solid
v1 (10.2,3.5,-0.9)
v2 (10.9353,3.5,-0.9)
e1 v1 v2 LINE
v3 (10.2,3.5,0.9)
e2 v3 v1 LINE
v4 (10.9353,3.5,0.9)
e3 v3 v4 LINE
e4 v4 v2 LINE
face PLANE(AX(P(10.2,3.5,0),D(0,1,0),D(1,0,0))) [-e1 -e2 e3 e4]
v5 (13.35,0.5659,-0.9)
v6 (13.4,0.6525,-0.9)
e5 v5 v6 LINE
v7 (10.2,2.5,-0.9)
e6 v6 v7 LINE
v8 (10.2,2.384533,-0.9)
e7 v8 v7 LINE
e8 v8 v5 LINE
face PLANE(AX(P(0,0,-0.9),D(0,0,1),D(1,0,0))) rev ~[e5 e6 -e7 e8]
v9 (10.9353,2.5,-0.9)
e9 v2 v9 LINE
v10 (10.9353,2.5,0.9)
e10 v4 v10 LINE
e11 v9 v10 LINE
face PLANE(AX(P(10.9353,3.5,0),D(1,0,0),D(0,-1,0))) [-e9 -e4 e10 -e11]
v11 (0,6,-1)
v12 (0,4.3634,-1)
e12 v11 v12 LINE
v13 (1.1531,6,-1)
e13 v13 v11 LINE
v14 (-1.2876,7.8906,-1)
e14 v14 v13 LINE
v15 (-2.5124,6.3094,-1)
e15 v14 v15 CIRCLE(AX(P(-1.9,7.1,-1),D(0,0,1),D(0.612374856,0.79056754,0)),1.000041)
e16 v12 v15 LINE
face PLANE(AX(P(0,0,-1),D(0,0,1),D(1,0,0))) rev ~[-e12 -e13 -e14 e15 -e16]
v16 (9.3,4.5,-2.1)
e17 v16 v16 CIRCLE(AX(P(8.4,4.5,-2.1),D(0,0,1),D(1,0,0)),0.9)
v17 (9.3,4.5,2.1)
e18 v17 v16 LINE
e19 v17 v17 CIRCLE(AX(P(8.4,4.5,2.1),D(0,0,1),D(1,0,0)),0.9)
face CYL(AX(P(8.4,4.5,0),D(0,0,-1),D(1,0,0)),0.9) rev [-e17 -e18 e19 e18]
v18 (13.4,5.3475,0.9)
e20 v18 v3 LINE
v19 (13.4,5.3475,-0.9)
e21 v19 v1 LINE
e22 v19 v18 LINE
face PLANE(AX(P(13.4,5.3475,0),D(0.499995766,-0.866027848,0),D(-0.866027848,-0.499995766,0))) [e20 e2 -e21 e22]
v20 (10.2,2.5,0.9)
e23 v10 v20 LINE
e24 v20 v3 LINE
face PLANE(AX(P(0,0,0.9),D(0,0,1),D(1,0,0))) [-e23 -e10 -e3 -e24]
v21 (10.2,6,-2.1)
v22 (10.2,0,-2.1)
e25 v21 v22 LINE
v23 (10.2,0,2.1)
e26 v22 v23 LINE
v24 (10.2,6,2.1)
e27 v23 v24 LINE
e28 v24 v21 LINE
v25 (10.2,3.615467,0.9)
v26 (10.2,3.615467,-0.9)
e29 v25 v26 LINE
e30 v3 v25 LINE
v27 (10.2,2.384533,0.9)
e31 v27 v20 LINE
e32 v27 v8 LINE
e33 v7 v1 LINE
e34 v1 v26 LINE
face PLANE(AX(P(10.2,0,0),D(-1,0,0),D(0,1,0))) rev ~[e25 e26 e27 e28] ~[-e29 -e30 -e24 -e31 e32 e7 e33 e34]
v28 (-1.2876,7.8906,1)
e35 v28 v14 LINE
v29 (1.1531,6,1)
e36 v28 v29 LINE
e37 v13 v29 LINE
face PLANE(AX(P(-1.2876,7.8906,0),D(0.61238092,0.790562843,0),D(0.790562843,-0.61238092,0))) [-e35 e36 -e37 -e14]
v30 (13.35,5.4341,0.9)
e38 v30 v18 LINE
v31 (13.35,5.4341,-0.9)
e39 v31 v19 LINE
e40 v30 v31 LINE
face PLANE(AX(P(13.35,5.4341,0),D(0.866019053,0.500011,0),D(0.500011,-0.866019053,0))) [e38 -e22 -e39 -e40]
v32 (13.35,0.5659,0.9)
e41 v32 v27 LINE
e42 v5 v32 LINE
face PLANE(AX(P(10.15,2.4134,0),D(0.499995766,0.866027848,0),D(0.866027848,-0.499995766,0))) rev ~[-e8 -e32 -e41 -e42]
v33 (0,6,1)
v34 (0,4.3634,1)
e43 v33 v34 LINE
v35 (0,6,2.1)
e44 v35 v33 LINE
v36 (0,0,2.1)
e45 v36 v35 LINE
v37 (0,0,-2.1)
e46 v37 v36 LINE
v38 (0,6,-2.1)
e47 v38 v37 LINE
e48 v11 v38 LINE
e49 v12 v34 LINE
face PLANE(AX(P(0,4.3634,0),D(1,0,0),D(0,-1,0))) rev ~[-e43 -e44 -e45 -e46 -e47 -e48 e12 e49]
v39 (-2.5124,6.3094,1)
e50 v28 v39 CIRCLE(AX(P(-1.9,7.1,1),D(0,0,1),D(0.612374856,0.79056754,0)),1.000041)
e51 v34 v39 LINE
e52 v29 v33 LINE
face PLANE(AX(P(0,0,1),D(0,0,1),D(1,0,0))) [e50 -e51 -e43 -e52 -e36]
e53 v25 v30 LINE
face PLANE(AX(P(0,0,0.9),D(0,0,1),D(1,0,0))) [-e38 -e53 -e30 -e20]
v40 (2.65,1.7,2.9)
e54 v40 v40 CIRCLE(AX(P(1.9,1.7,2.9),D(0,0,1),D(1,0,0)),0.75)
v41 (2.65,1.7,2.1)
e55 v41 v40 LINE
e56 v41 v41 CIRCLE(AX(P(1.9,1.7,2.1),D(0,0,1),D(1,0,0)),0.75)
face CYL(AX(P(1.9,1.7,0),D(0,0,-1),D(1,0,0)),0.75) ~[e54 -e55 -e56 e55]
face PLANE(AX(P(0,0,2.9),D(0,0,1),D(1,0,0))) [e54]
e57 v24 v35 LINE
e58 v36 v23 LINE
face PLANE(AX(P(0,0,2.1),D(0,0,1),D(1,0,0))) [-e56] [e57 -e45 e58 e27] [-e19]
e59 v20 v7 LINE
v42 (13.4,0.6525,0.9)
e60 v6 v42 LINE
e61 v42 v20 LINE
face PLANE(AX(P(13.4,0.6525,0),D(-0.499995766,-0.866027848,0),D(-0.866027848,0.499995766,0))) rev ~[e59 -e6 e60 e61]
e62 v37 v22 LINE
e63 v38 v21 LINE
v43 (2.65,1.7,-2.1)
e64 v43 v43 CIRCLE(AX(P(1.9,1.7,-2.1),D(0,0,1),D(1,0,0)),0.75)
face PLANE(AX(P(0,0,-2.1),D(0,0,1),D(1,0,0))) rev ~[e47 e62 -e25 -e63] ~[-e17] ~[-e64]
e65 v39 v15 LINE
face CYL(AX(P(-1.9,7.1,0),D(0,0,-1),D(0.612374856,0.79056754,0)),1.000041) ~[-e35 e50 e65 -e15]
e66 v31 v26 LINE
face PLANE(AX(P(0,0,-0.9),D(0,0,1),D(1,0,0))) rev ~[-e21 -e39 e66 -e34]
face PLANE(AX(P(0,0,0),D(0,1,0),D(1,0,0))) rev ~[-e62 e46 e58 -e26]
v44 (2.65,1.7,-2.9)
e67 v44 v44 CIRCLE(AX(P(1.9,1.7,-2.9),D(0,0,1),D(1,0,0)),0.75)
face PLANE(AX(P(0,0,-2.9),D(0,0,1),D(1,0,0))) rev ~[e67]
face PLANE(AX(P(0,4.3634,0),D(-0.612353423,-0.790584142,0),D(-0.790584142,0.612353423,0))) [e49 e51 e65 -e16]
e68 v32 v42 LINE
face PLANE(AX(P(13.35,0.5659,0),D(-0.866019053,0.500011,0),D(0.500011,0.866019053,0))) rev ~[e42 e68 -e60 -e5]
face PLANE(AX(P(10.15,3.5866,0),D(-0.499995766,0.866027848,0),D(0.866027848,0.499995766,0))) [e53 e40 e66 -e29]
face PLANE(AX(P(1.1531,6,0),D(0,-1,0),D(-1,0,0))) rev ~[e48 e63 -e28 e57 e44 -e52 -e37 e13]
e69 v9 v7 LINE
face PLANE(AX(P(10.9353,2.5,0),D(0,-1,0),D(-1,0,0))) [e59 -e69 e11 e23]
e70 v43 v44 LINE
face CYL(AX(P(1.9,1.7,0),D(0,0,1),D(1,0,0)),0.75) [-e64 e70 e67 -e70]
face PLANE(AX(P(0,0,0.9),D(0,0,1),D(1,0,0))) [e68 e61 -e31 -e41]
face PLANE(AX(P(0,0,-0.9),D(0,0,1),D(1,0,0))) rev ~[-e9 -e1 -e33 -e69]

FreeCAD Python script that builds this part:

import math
import FreeCAD as App
import Part
import Sketcher
Q = App.Units.Quantity


def add_polygon(sketch, points):
    """Adds a closed chain of lines whose ends are joined by coincident constraints."""
    first, n = sketch.GeometryCount, len(points)
    for a, b in zip(points, points[1:] + points[:1]):
        sketch.addGeometry(Part.LineSegment(App.Vector(*a, 0), App.Vector(*b, 0)), False)
    for i in range(n):
        sketch.addConstraint(Sketcher.Constraint("Coincident", first + i, 2, first + (i + 1) % n, 1))

doc = App.newDocument("Part")
params = doc.addObject("Spreadsheet::Sheet", "Params")
for row, (alias, value) in enumerate([
    ("sketch1_diameter", "1.5 mm"),
    ("sketch1_diameter2", "1.8 mm"),
    ("sketch1_height", "6 mm"),
    ("sketch1_width", "10.2 mm"),
    ("pad1_length", "4.2 mm"),
    ("sketch2_height", "1 mm"),
    ("sketch2_length", "0.1 mm"),
    ("pad2_length", "1.8 mm"),
    ("sketch3_diameter", "1.5 mm"),
    ("pad3_length", "5.8 mm"),
    ("sketch4_radius", "1 mm"),
    ("pad4_length", "2 mm"),
], start=1):
    params.set(f"A{row}", alias)
    params.set(f"B{row}", "=" + value)
    params.setAlias(f"B{row}", alias)

body = doc.addObject("PartDesign::Body", "Body")

# Sketch on XY plane
sketch1 = body.newObject("Sketcher::SketchObject", "Sketch")
sketch1.AttachmentSupport = (doc.getObject("XY_Plane"), [""])
sketch1.MapMode = "FlatFace"
add_polygon(sketch1, [(0, 0), (10.2, 0), (10.2, 6), (0, 6)])  # lines 0-3
sketch1.addGeometry(Part.Circle(App.Vector(1.9, 1.7, 0), App.Vector(0, 0, 1), 0.75), False)  # 4
sketch1.addGeometry(Part.Circle(App.Vector(8.4, 4.5, 0), App.Vector(0, 0, 1), 0.9), False)  # 5
sketch1.addConstraint(Sketcher.Constraint("Horizontal", 0))
sketch1.addConstraint(Sketcher.Constraint("Vertical", 1))
sketch1.addConstraint(Sketcher.Constraint("Horizontal", 2))
sketch1.addConstraint(Sketcher.Constraint("Vertical", 3))
sketch1.addConstraint(Sketcher.Constraint("Coincident", 3, 2, -1, 1))
sketch1.addConstraint(Sketcher.Constraint("Diameter", 4, Q("1.5 mm")))
sketch1.addConstraint(Sketcher.Constraint("Diameter", 5, Q("1.8 mm")))
sketch1.addConstraint(Sketcher.Constraint("DistanceY", 1, 1, 1, 2, Q("6 mm")))
sketch1.addConstraint(Sketcher.Constraint("DistanceX", 0, 1, 0, 2, Q("10.2 mm")))
sketch1.addConstraint(Sketcher.Constraint("DistanceX", 4, 3, 5, 3, Q("6.5 mm")))
sketch1.addConstraint(Sketcher.Constraint("DistanceY", 4, 3, 5, 3, Q("2.8 mm")))
sketch1.addConstraint(Sketcher.Constraint("DistanceX", 5, 3, 0, 2, Q("1.8 mm")))
sketch1.addConstraint(Sketcher.Constraint("DistanceY", 5, 3, 1, 2, Q("1.5 mm")))
sketch1.setExpression("Constraints[9]", "Params.sketch1_diameter")
sketch1.setExpression("Constraints[10]", "Params.sketch1_diameter2")
sketch1.setExpression("Constraints[11]", "Params.sketch1_height")
sketch1.setExpression("Constraints[12]", "Params.sketch1_width")
pad1 = body.newObject("PartDesign::Pad", "Pad")
pad1.Profile = sketch1
pad1.setExpression("Length", "Params.pad1_length")
pad1.Midplane = True

# Sketch on XY plane
sketch2 = body.newObject("Sketcher::SketchObject", "Sketch001")
sketch2.AttachmentSupport = (doc.getObject("XY_Plane"), [""])
sketch2.MapMode = "FlatFace"
add_polygon(sketch2, [(10.15, 2.4134), (13.35, 0.5659), (13.4, 0.6525), (10.2, 2.5)])  # lines 0-3
add_polygon(sketch2, [(10.2, 3.5), (10.2, 2.5), (10.9353, 2.5), (10.9353, 3.5)])  # lines 4-7
add_polygon(sketch2, [(10.15, 3.5866), (10.2, 3.5), (13.4, 5.3475), (13.35, 5.4341)])  # lines 8-11
sketch2.addConstraint(Sketcher.Constraint("Vertical", 4))
sketch2.addConstraint(Sketcher.Constraint("Horizontal", 5))
sketch2.addConstraint(Sketcher.Constraint("Vertical", 6))
sketch2.addConstraint(Sketcher.Constraint("Horizontal", 7))
sketch2.addConstraint(Sketcher.Constraint("Coincident", 4, 2, 2, 2))
sketch2.addConstraint(Sketcher.Constraint("Coincident", 8, 2, 7, 2))
sketch2.addConstraint(Sketcher.Constraint("Perpendicular", 0, 1))
sketch2.addConstraint(Sketcher.Constraint("Perpendicular", 1, 2))
sketch2.addConstraint(Sketcher.Constraint("Perpendicular", 2, 3))
sketch2.addConstraint(Sketcher.Constraint("Perpendicular", 8, 9))
sketch2.addConstraint(Sketcher.Constraint("Perpendicular", 9, 10))
sketch2.addConstraint(Sketcher.Constraint("Perpendicular", 10, 11))
sketch2.addConstraint(Sketcher.Constraint("Vertical", 1, 2, 9, 2))
sketch2.addConstraint(Sketcher.Constraint("Vertical", 0, 2, 10, 2))
sketch2.addConstraint(Sketcher.Constraint("Equal", 3, 8))
sketch2.addConstraint(Sketcher.Constraint("DistanceY", 4, 2, 4, 1, Q("1 mm")))
sketch2.addConstraint(Sketcher.Constraint("Angle", 0, Q("-29.9997 deg")))
sketch2.addConstraint(Sketcher.Constraint("Distance", 1, Q("0.1 mm")))
sketch2.addConstraint(Sketcher.Constraint("DistanceX", -1, 1, 2, 2, Q("10.2 mm")))
sketch2.addConstraint(Sketcher.Constraint("DistanceX", -1, 1, 1, 2, Q("13.4 mm")))
sketch2.addConstraint(Sketcher.Constraint("DistanceY", -1, 1, 2, 2, Q("2.5 mm")))
sketch2.addConstraint(Sketcher.Constraint("DistanceX", 5, 1, 5, 2, Q("0.7353 mm")))
sketch2.setExpression("Constraints[27]", "Params.sketch2_height")
sketch2.setExpression("Constraints[29]", "Params.sketch2_length")
pad2 = body.newObject("PartDesign::Pad", "Pad001")
pad2.Profile = sketch2
pad2.setExpression("Length", "Params.pad2_length")
pad2.Midplane = True

# Sketch on XY plane
sketch3 = body.newObject("Sketcher::SketchObject", "Sketch002")
sketch3.AttachmentSupport = (doc.getObject("XY_Plane"), [""])
sketch3.MapMode = "FlatFace"
sketch3.addGeometry(Part.Circle(App.Vector(1.9, 1.7, 0), App.Vector(0, 0, 1), 0.75), False)
sketch3.addConstraint(Sketcher.Constraint("Diameter", 0, Q("1.5 mm")))
sketch3.addConstraint(Sketcher.Constraint("DistanceX", -1, 1, 0, 3, Q("1.9 mm")))
sketch3.addConstraint(Sketcher.Constraint("DistanceY", -1, 1, 0, 3, Q("1.7 mm")))
sketch3.setExpression("Constraints[0]", "Params.sketch3_diameter")
pad3 = body.newObject("PartDesign::Pad", "Pad002")
pad3.Profile = sketch3
pad3.setExpression("Length", "Params.pad3_length")
pad3.Midplane = True

# Sketch on XY plane
sketch4 = body.newObject("Sketcher::SketchObject", "Sketch003")
sketch4.AttachmentSupport = (doc.getObject("XY_Plane"), [""])
sketch4.MapMode = "FlatFace"
sketch4.addGeometry(Part.LineSegment(App.Vector(-2.5124, 6.3094, 0), App.Vector(0, 4.3634, 0)), False)
sketch4.addGeometry(Part.LineSegment(App.Vector(0, 4.3634, 0), App.Vector(0, 6, 0)), False)
sketch4.addGeometry(Part.LineSegment(App.Vector(0, 6, 0), App.Vector(1.1531, 6, 0)), False)
sketch4.addGeometry(Part.LineSegment(App.Vector(1.1531, 6, 0), App.Vector(-1.2876, 7.8906, 0)), False)
sketch4.addGeometry(Part.ArcOfCircle(Part.Circle(App.Vector(-1.9, 7.1, 0), App.Vector(0, 0, 1), 1.000041), math.radians(52.238581), math.radians(232.238581)), False)
sketch4.addConstraint(Sketcher.Constraint("Coincident", 0, 2, 1, 1))
sketch4.addConstraint(Sketcher.Constraint("Coincident", 1, 2, 2, 1))
sketch4.addConstraint(Sketcher.Constraint("Coincident", 2, 2, 3, 1))
sketch4.addConstraint(Sketcher.Constraint("Tangent", 3, 2, 4, 1))
sketch4.addConstraint(Sketcher.Constraint("Tangent", 4, 2, 0, 1))
sketch4.addConstraint(Sketcher.Constraint("Vertical", 1))
sketch4.addConstraint(Sketcher.Constraint("Horizontal", 2))
sketch4.addConstraint(Sketcher.Constraint("PointOnObject", 0, 2, -2))
sketch4.addConstraint(Sketcher.Constraint("Parallel", 0, 3))
sketch4.addConstraint(Sketcher.Constraint("Radius", 4, Q("1 mm")))
sketch4.addConstraint(Sketcher.Constraint("DistanceY", -1, 1, 1, 2, Q("6 mm")))
sketch4.addConstraint(Sketcher.Constraint("DistanceX", 4, 3, -1, 1, Q("1.9 mm")))
sketch4.addConstraint(Sketcher.Constraint("DistanceY", -1, 1, 4, 3, Q("7.1 mm")))
sketch4.addConstraint(Sketcher.Constraint("Angle", 0, Q("-37.7599 deg")))
sketch4.setExpression("Constraints[9]", "Params.sketch4_radius")
pad4 = body.newObject("PartDesign::Pad", "Pad003")
pad4.Profile = sketch4
pad4.setExpression("Length", "Params.pad4_length")
pad4.Midplane = True

doc.recompute()
